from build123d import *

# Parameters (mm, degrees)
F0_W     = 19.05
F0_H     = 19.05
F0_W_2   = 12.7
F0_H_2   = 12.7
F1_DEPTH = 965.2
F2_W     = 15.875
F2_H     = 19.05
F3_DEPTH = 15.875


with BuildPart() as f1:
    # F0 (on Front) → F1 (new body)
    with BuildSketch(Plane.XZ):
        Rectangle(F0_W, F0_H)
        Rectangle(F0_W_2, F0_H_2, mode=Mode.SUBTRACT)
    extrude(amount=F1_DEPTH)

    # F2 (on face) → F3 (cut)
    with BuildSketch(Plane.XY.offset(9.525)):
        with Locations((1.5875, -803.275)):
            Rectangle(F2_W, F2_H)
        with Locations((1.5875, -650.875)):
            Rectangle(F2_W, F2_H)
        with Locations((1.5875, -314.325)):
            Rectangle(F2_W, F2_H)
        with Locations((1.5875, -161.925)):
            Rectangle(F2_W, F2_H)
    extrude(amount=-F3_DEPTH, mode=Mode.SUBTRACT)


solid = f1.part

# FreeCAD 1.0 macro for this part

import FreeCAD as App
import Part
import Sketcher
from FreeCAD import Vector
Q = App.Units.Quantity


def add_polygon(sketch, points):
    """Adds a closed chain of lines whose ends are joined by coincident constraints."""
    first, n = sketch.GeometryCount, len(points)
    for a, b in zip(points, points[1:] + points[:1]):
        sketch.addGeometry(Part.LineSegment(App.Vector(*a, 0), App.Vector(*b, 0)), False)
    for i in range(n):
        sketch.addConstraint(Sketcher.Constraint("Coincident", first + i, 2, first + (i + 1) % n, 1))

doc = App.newDocument("Part")
body = doc.addObject("PartDesign::Body", "Body")

sketch1 = body.newObject("Sketcher::SketchObject", "Sketch")
sketch1.AttachmentSupport = (doc.getObject("XZ_Plane"), [""])
sketch1.MapMode = "FlatFace"
add_polygon(sketch1, [(-10, 10), (-10, -10), (10, -10), (10, 10)])
add_polygon(sketch1, [(6, -6), (-6, -6), (-6, 6), (6, 6)])
sketch1.addConstraint([
    Sketcher.Constraint("Vertical", 0),
    Sketcher.Constraint("Horizontal", 1),
    Sketcher.Constraint("Vertical", 2),
    Sketcher.Constraint("Horizontal", 3),
    Sketcher.Constraint("Horizontal", 4),
    Sketcher.Constraint("Vertical", 5),
    Sketcher.Constraint("Horizontal", 6),
    Sketcher.Constraint("Vertical", 7),
    Sketcher.Constraint("Symmetric", 0, 2, 2, 2, -1, 1),
    Sketcher.Constraint("Symmetric", 4, 2, 6, 2, -1, 1),
    Sketcher.Constraint("Equal", 3, 0),
    Sketcher.Constraint("Equal", 6, 5),
    Sketcher.Constraint("DistanceX", 4, 2, 4, 1, Q("0.5 in")),
    Sketcher.Constraint("DistanceX", 1, 1, 1, 2, Q("0.75 in")),
])
pad1 = body.newObject("PartDesign::Pad", "Pad")
pad1.Profile = sketch1
pad1.Length = Q("38 in")

sketch2 = body.newObject("Sketcher::SketchObject", "Sketch001")
sketch2.AttachmentSupport = (doc.getObject("XY_Plane"), [""])
sketch2.MapMode = "FlatFace"
sketch2.AttachmentOffset = App.Placement(Vector(0, 0, 0.375 * 25.4), App.Rotation())
add_polygon(sketch2, [(-6, -794), (-6, -813), (10, -813), (10, -794)])
add_polygon(sketch2, [(-6, -641), (-6, -660), (10, -660), (10, -641)])
add_polygon(sketch2, [(-6, -305), (-6, -324), (10, -324), (10, -305)])
add_polygon(sketch2, [(-6, -152), (-6, -171), (10, -171), (10, -152)])
sketch2.addConstraint([
    Sketcher.Constraint("Vertical", 0),
    Sketcher.Constraint("Horizontal", 1),
    Sketcher.Constraint("Vertical", 2),
    Sketcher.Constraint("Horizontal", 3),
    Sketcher.Constraint("Vertical", 4),
    Sketcher.Constraint("Horizontal", 5),
    Sketcher.Constraint("Vertical", 6),
    Sketcher.Constraint("Horizontal", 7),
    Sketcher.Constraint("Vertical", 8),
    Sketcher.Constraint("Horizontal", 9),
    Sketcher.Constraint("Vertical", 10),
    Sketcher.Constraint("Horizontal", 11),
    Sketcher.Constraint("Vertical", 12),
    Sketcher.Constraint("Horizontal", 13),
    Sketcher.Constraint("Vertical", 14),
    Sketcher.Constraint("Horizontal", 15),
    Sketcher.Constraint("Vertical", 3, 2, 4, 2),
    Sketcher.Constraint("Vertical", 2, 2, 5, 2),
    Sketcher.Constraint("Vertical", 7, 2, 8, 2),
    Sketcher.Constraint("Vertical", 6, 2, 9, 2),
    Sketcher.Constraint("Vertical", 11, 2, 12, 2),
    Sketcher.Constraint("Vertical", 10, 2, 13, 2),
    Sketcher.Constraint("Equal", 2, 4),
    Sketcher.Constraint("Equal", 6, 8),
    Sketcher.Constraint("Equal", 10, 12),
    Sketcher.Constraint("DistanceY", 0, 2, -1, 1, Q("32 in")),
    Sketcher.Constraint("DistanceY", 4, 2, -1, 1, Q("26 in")),
    Sketcher.Constraint("DistanceY", 10, 2, -1, 1, Q("12 in")),
    Sketcher.Constraint("DistanceY", 14, 2, -1, 1, Q("6 in")),
    Sketcher.Constraint("DistanceY", 0, 2, 0, 1, Q("0.75 in")),
    Sketcher.Constraint("DistanceX", 1, 1, 1, 2, Q("0.625 in")),
    Sketcher.Constraint("DistanceX", 0, 2, -1, 1, Q("0.25 in")),
])
pocket1 = body.newObject("PartDesign::Pocket", "Pocket")
pocket1.Profile = sketch2
pocket1.Length = Q("0.625 in")

doc.recompute()
